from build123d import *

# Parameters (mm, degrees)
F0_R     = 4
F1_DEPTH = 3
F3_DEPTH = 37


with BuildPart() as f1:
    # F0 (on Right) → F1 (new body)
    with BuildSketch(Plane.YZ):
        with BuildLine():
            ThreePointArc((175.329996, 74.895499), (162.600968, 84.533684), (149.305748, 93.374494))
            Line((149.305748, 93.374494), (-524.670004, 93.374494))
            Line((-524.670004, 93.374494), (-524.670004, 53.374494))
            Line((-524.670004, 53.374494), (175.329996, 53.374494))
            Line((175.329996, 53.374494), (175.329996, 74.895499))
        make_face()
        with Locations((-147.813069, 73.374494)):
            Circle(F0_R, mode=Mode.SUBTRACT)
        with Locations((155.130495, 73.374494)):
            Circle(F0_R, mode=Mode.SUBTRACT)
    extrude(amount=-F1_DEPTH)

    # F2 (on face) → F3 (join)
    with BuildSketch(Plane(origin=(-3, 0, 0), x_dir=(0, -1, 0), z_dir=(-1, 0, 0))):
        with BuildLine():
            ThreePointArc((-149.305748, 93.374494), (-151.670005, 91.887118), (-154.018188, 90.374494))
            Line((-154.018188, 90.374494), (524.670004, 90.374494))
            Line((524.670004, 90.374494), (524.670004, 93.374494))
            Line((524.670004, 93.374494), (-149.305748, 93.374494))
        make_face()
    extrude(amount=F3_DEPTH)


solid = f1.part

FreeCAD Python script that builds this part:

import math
import FreeCAD as App
import Part
import Sketcher
Q = App.Units.Quantity

doc = App.newDocument("Part")
body = doc.addObject("PartDesign::Body", "Body")

# Sketch on YZ plane
sketch1 = doc.addObject("Sketcher::SketchObject", "Sketch")
body.addObject(sketch1)
sketch1.AttachmentSupport = (doc.YZ_Plane, [""])
sketch1.MapMode = "FlatFace"
sketch1.addGeometry([
    Part.ArcOfCircle(Part.Circle(App.Vector(11.7, -128, 0), App.Vector(0, 0, 1), 260.7), math.radians(51.11), math.radians(58.13)),  # 0
    Part.LineSegment(App.Vector(149.3, 93.4, 0), App.Vector(-524.7, 93.4, 0)),  # 1
    Part.LineSegment(App.Vector(-524.7, 93.4, 0), App.Vector(-524.7, 53.4, 0)),  # 2
    Part.LineSegment(App.Vector(-524.7, 53.4, 0), App.Vector(175.3, 53.4, 0)),  # 3
    Part.LineSegment(App.Vector(175.3, 53.4, 0), App.Vector(175.3, 74.9, 0)),  # 4
    Part.Circle(App.Vector(-147.8, 73.4, 0), App.Vector(0, 0, 1), 4),  # 5
    Part.Circle(App.Vector(155.1, 73.4, 0), App.Vector(0, 0, 1), 4),  # 6
], False)
sketch1.addConstraint([
    Sketcher.Constraint("Coincident", 0, 2, 1, 1),
    Sketcher.Constraint("Coincident", 1, 2, 2, 1),
    Sketcher.Constraint("Coincident", 2, 2, 3, 1),
    Sketcher.Constraint("Coincident", 3, 2, 4, 1),
    Sketcher.Constraint("Coincident", 4, 2, 0, 1),
    Sketcher.Constraint("Horizontal", 1),
    Sketcher.Constraint("Vertical", 2),
    Sketcher.Constraint("Horizontal", 3),
    Sketcher.Constraint("Vertical", 4),
    Sketcher.Constraint("Equal", 5, 6),
    Sketcher.Constraint("Horizontal", 5, 3, 6, 3),
    Sketcher.Constraint("Diameter", 5, Q("8 mm")),
    Sketcher.Constraint("DistanceX", 3, 1, 3, 2, Q("700 mm")),
    Sketcher.Constraint("DistanceY", 2, 2, 2, 1, Q("40 mm")),
    Sketcher.Constraint("DistanceY", 6, 3, 0, 2, Q("20 mm")),
    Sketcher.Constraint("Radius", 0, Q("260.671374 mm")),
    Sketcher.Constraint("DistanceX", 1, 2, 1, 1, Q("673.975752 mm")),
    Sketcher.Constraint("DistanceY", -1, 1, 4, 2, Q("74.895499 mm")),
    Sketcher.Constraint("DistanceX", 1, 2, 6, 3, Q("679.800499 mm")),
    Sketcher.Constraint("DistanceY", 4, 1, 4, 2, Q("21.521005 mm")),
    Sketcher.Constraint("DistanceX", 5, 3, -1, 1, Q("147.813069 mm")),
    Sketcher.Constraint("DistanceX", -1, 1, 0, 3, Q("11.682936 mm")),
])
pad1 = doc.addObject("PartDesign::Pad", "Pad")
body.addObject(pad1)
pad1.Profile = sketch1
pad1.Length = 3
pad1.Reversed = True

# Sketch on YZ plane
sketch2 = doc.addObject("Sketcher::SketchObject", "Sketch001")
body.addObject(sketch2)
sketch2.AttachmentSupport = (doc.YZ_Plane, [""])
sketch2.MapMode = "FlatFace"
sketch2.AttachmentOffset = App.Placement(App.Vector(0, 0, -3), App.Rotation())
sketch2.addGeometry([
    Part.ArcOfCircle(Part.Circle(App.Vector(11.7, -128, 0), App.Vector(0, 0, 1), 260.7), math.radians(56.9), math.radians(58.13)),
    Part.LineSegment(App.Vector(154, 90.4, 0), App.Vector(-524.7, 90.4, 0)),
    Part.LineSegment(App.Vector(-524.7, 90.4, 0), App.Vector(-524.7, 93.4, 0)),
    Part.LineSegment(App.Vector(-524.7, 93.4, 0), App.Vector(149.3, 93.4, 0)),
], False)
sketch2.addConstraint([
    Sketcher.Constraint("Coincident", 0, 1, 1, 1),
    Sketcher.Constraint("Coincident", 1, 2, 2, 1),
    Sketcher.Constraint("Coincident", 2, 2, 3, 1),
    Sketcher.Constraint("Coincident", 3, 2, 0, 2),
    Sketcher.Constraint("Horizontal", 1),
    Sketcher.Constraint("Vertical", 2),
    Sketcher.Constraint("Horizontal", 3),
    Sketcher.Constraint("DistanceY", 2, 1, 2, 2, Q("3 mm")),
    Sketcher.Constraint("Radius", 0, Q("260.67042 mm")),
    Sketcher.Constraint("DistanceX", 1, 2, 1, 1, Q("678.688192 mm")),
    Sketcher.Constraint("DistanceX", 3, 1, 3, 2, Q("673.975752 mm")),
    Sketcher.Constraint("DistanceY", 0, 3, -1, 1, Q("128.005648 mm")),
    Sketcher.Constraint("DistanceX", -1, 1, 3, 2, Q("149.305748 mm")),
])
pad2 = doc.addObject("PartDesign::Pad", "Pad001")
body.addObject(pad2)
pad2.Profile = sketch2
pad2.Length = 37
pad2.Reversed = True

doc.recompute()
